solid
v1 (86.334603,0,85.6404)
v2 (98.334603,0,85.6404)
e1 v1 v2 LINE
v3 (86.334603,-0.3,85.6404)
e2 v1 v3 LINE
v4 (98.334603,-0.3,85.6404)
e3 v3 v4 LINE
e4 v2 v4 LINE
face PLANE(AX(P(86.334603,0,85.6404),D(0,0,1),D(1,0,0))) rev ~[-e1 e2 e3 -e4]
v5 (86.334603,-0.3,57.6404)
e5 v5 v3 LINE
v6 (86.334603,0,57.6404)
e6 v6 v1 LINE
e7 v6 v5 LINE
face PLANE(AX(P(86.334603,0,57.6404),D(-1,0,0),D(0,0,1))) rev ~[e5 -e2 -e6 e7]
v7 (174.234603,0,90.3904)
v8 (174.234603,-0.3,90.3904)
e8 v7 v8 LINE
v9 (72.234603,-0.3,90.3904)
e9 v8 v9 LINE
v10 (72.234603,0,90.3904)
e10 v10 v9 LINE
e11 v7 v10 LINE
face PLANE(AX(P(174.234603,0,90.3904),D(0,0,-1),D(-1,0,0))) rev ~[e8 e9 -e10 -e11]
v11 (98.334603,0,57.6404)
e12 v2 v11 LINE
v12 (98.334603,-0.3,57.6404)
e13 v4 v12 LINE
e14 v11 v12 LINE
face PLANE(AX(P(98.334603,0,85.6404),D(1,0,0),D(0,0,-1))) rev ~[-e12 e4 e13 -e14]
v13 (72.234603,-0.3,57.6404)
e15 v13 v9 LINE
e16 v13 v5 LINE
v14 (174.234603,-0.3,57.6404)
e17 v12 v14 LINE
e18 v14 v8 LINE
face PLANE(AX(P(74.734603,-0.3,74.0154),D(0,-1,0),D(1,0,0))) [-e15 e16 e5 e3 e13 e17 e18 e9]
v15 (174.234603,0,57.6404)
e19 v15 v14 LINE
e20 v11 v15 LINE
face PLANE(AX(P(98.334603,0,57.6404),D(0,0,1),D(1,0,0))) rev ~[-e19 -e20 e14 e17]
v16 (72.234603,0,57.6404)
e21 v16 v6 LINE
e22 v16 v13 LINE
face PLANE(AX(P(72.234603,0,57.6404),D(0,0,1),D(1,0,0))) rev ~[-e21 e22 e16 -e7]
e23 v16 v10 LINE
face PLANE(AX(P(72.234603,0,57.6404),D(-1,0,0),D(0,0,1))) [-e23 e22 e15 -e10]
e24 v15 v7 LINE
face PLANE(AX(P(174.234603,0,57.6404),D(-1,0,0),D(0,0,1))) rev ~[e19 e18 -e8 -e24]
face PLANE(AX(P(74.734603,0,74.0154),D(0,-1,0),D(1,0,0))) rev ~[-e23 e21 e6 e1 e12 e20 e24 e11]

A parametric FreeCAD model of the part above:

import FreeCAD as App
import Part
import Sketcher
from FreeCAD import Vector
Q = App.Units.Quantity

doc = App.newDocument("Part")
body = doc.addObject("PartDesign::Body", "Body")

sketch1 = body.newObject("Sketcher::SketchObject", "Sketch")
sketch1.AttachmentSupport = (doc.getObject("XZ_Plane"), [""])
sketch1.MapMode = "FlatFace"
sketch1.addGeometry([
    Part.LineSegment(Vector(72, 90, 0), Vector(72, 58, 0)),
    Part.LineSegment(Vector(72, 58, 0), Vector(86, 58, 0)),
    Part.LineSegment(Vector(86, 58, 0), Vector(86, 86, 0)),
    Part.LineSegment(Vector(86, 86, 0), Vector(98, 86, 0)),
    Part.LineSegment(Vector(98, 86, 0), Vector(98, 58, 0)),
    Part.LineSegment(Vector(98, 58, 0), Vector(174, 58, 0)),
    Part.LineSegment(Vector(174, 58, 0), Vector(174, 90, 0)),
    Part.LineSegment(Vector(174, 90, 0), Vector(72, 90, 0)),
], False)
sketch1.addConstraint([
    Sketcher.Constraint("Coincident", 0, 2, 1, 1),
    Sketcher.Constraint("Coincident", 1, 2, 2, 1),
    Sketcher.Constraint("Coincident", 2, 2, 3, 1),
    Sketcher.Constraint("Coincident", 3, 2, 4, 1),
    Sketcher.Constraint("Coincident", 4, 2, 5, 1),
    Sketcher.Constraint("Coincident", 5, 2, 6, 1),
    Sketcher.Constraint("Coincident", 6, 2, 7, 1),
    Sketcher.Constraint("Coincident", 7, 2, 0, 1),
    Sketcher.Constraint("Vertical", 0),
    Sketcher.Constraint("Horizontal", 1),
    Sketcher.Constraint("Vertical", 2),
    Sketcher.Constraint("Horizontal", 3),
    Sketcher.Constraint("Vertical", 4),
    Sketcher.Constraint("Horizontal", 5),
    Sketcher.Constraint("Vertical", 6),
    Sketcher.Constraint("Horizontal", 7),
    Sketcher.Constraint("Horizontal", 1, 2, 4, 2),
    Sketcher.Constraint("DistanceX", 3, 1, 3, 2, Q("12 mm")),
    Sketcher.Constraint("DistanceX", 7, 2, 7, 1, Q("102 mm")),
    Sketcher.Constraint("DistanceY", 2, 1, 2, 2, Q("28 mm")),
    Sketcher.Constraint("DistanceX", 1, 1, 1, 2, Q("14.1 mm")),
    Sketcher.Constraint("DistanceY", 0, 2, 0, 1, Q("32.75 mm")),
    Sketcher.Constraint("DistanceY", -1, 1, 0, 2, Q("57.6404 mm")),
    Sketcher.Constraint("DistanceX", -1, 1, 0, 2, Q("72.234603 mm")),
])
pad1 = body.newObject("PartDesign::Pad", "Pad")
pad1.Profile = sketch1
pad1.Length = 0.3

doc.recompute()
